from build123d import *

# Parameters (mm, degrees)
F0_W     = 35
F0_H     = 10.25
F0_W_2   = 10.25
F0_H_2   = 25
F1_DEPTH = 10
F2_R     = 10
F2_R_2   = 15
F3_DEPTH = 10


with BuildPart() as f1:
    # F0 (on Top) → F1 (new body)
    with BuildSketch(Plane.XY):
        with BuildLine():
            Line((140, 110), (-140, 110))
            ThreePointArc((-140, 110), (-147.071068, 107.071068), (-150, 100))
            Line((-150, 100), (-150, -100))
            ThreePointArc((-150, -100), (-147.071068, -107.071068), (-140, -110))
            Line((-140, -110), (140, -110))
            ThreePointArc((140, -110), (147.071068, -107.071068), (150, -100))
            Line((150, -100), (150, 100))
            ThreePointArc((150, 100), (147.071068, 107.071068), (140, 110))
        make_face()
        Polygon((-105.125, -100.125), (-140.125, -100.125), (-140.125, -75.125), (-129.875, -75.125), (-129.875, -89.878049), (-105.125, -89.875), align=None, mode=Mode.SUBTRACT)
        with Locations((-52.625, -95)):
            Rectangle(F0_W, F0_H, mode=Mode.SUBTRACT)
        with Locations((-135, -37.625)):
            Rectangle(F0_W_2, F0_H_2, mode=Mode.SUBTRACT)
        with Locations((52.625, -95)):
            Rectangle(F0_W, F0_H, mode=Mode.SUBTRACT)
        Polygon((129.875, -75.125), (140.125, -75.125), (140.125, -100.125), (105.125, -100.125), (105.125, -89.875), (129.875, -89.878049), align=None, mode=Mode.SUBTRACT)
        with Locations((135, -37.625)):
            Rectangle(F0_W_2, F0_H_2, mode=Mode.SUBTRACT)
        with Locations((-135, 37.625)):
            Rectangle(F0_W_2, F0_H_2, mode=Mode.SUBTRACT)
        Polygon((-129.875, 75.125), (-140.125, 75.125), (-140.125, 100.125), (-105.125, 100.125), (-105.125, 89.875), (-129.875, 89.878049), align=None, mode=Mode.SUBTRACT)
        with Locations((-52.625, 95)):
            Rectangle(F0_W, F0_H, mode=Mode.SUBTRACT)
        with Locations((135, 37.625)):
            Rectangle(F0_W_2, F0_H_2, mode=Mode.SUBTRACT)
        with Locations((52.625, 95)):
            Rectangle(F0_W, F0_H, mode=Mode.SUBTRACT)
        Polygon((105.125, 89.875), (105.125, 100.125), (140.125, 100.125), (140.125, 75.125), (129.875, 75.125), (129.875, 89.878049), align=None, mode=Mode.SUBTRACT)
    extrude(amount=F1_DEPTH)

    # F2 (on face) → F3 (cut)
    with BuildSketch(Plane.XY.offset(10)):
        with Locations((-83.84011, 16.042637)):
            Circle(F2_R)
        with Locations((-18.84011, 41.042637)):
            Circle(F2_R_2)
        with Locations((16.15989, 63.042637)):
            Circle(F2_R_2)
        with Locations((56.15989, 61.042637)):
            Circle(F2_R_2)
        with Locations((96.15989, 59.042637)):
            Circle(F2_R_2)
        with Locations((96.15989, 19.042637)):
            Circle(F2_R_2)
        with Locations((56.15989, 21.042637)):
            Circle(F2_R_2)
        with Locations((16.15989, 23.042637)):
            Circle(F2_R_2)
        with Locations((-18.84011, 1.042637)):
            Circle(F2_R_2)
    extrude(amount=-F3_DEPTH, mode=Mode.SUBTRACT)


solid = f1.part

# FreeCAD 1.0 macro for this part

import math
import FreeCAD as App
import Part
import Sketcher

V = App.Vector


def add_polygon(sketch, points):
    """Adds a closed chain of lines whose ends are joined by coincident constraints."""
    first, n = sketch.GeometryCount, len(points)
    for a, b in zip(points, points[1:] + points[:1]):
        sketch.addGeometry(Part.LineSegment(App.Vector(*a, 0), App.Vector(*b, 0)), False)
    for i in range(n):
        sketch.addConstraint(Sketcher.Constraint("Coincident", first + i, 2, first + (i + 1) % n, 1))

doc = App.newDocument("Part")
params = doc.addObject("Spreadsheet::Sheet", "Params")
for row, (alias, value) in enumerate([
    ("sketch1_radius", "9.999999 mm"),
    ("sketch1_width", "280 mm"),
    ("sketch1_width2", "35 mm"),
    ("sketch1_height", "200 mm"),
    ("sketch1_height2", "25 mm"),
    ("pad1_length", "10 mm"),
    ("sketch2_diameter", "20 mm"),
    ("sketch2_diameter2", "30 mm"),
    ("pocket1_length", "10 mm"),
], start=1):
    params.set(f"A{row}", alias)
    params.set(f"B{row}", "=" + value)
    params.setAlias(f"B{row}", alias)

body = doc.addObject("PartDesign::Body", "Body")

# Sketch on XY plane
sketch1 = body.newObject("Sketcher::SketchObject", "Sketch")
sketch1.AttachmentSupport = (doc.getObject("XY_Plane"), [""])
sketch1.MapMode = "FlatFace"
sketch1.addGeometry(Part.LineSegment(V(140, 110, 0), V(-140, 110, 0)), False)  # 0
sketch1.addGeometry(Part.ArcOfCircle(Part.Circle(V(-140, 100, 0), V(0, 0, 1), 10), math.radians(90), math.radians(180)), False)  # 1
sketch1.addGeometry(Part.LineSegment(V(-150, 100, 0), V(-150, -100, 0)), False)  # 2
sketch1.addGeometry(Part.ArcOfCircle(Part.Circle(V(-140, -100, 0), V(0, 0, 1), 10), math.radians(180), math.radians(270)), False)  # 3
sketch1.addGeometry(Part.LineSegment(V(-140, -110, 0), V(140, -110, 0)), False)  # 4
sketch1.addGeometry(Part.ArcOfCircle(Part.Circle(V(140, -100, 0), V(0, 0, 1), 10), math.radians(-90), math.radians(0)), False)  # 5
sketch1.addGeometry(Part.LineSegment(V(150, -100, 0), V(150, 100, 0)), False)  # 6
sketch1.addGeometry(Part.ArcOfCircle(Part.Circle(V(140, 100, 0), V(0, 0, 1), 10), math.radians(0), math.radians(90)), False)  # 7
add_polygon(sketch1, [(-105, -90), (-105, -100), (-140, -100), (-140, -75), (-130, -75), (-130, -90)])  # lines 8-13
add_polygon(sketch1, [(-35, -100), (-70, -100), (-70, -90), (-35, -90)])  # lines 14-17
add_polygon(sketch1, [(-130, -50), (-140, -50), (-140, -25), (-130, -25)])  # lines 18-21
add_polygon(sketch1, [(70, -100), (35, -100), (35, -90), (70, -90)])  # lines 22-25
add_polygon(sketch1, [(130, -90), (130, -75), (140, -75), (140, -100), (105, -100), (105, -90)])  # lines 26-31
add_polygon(sketch1, [(140, -50), (130, -50), (130, -25), (140, -25)])  # lines 32-35
add_polygon(sketch1, [(-130, 25), (-140, 25), (-140, 50), (-130, 50)])  # lines 36-39
add_polygon(sketch1, [(-130, 90), (-130, 75), (-140, 75), (-140, 100), (-105, 100), (-105, 90)])  # lines 40-45
add_polygon(sketch1, [(-35, 90), (-70, 90), (-70, 100), (-35, 100)])  # lines 46-49
add_polygon(sketch1, [(140, 25), (130, 25), (130, 50), (140, 50)])  # lines 50-53
add_polygon(sketch1, [(70, 90), (35, 90), (35, 100), (70, 100)])  # lines 54-57
add_polygon(sketch1, [(130, 90), (105, 90), (105, 100), (140, 100), (140, 75), (130, 75)])  # lines 58-63
sketch1.addConstraint([
    Sketcher.Constraint("Tangent", 0, 2, 1, 1),
    Sketcher.Constraint("Tangent", 1, 2, 2, 1),
    Sketcher.Constraint("Tangent", 2, 2, 3, 1),
    Sketcher.Constraint("Tangent", 3, 2, 4, 1),
    Sketcher.Constraint("Tangent", 4, 2, 5, 1),
    Sketcher.Constraint("Tangent", 5, 2, 6, 1),
    Sketcher.Constraint("Tangent", 6, 2, 7, 1),
    Sketcher.Constraint("Tangent", 7, 2, 0, 1),
    Sketcher.Constraint("Horizontal", 0),
    Sketcher.Constraint("Vertical", 2),
    Sketcher.Constraint("Horizontal", 4),
    Sketcher.Constraint("Vertical", 6),
    Sketcher.Constraint("Vertical", 8),
    Sketcher.Constraint("Horizontal", 9),
    Sketcher.Constraint("Vertical", 10),
    Sketcher.Constraint("Horizontal", 11),
    Sketcher.Constraint("Vertical", 12),
    Sketcher.Constraint("Horizontal", 14),
    Sketcher.Constraint("Vertical", 15),
    Sketcher.Constraint("Horizontal", 16),
    Sketcher.Constraint("Vertical", 17),
    Sketcher.Constraint("Horizontal", 18),
    Sketcher.Constraint("Vertical", 19),
    Sketcher.Constraint("Horizontal", 20),
    Sketcher.Constraint("Vertical", 21),
    Sketcher.Constraint("Horizontal", 22),
    Sketcher.Constraint("Vertical", 23),
    Sketcher.Constraint("Horizontal", 24),
    Sketcher.Constraint("Vertical", 25),
    Sketcher.Constraint("Vertical", 26),
    Sketcher.Constraint("Horizontal", 27),
    Sketcher.Constraint("Vertical", 28),
    Sketcher.Constraint("Horizontal", 29),
    Sketcher.Constraint("Vertical", 30),
    Sketcher.Constraint("Horizontal", 32),
    Sketcher.Constraint("Vertical", 33),
    Sketcher.Constraint("Horizontal", 34),
    Sketcher.Constraint("Vertical", 35),
    Sketcher.Constraint("Horizontal", 36),
    Sketcher.Constraint("Vertical", 37),
    Sketcher.Constraint("Horizontal", 38),
    Sketcher.Constraint("Vertical", 39),
    Sketcher.Constraint("Vertical", 40),
    Sketcher.Constraint("Horizontal", 41),
    Sketcher.Constraint("Vertical", 42),
    Sketcher.Constraint("Horizontal", 43),
    Sketcher.Constraint("Vertical", 44),
    Sketcher.Constraint("Horizontal", 46),
    Sketcher.Constraint("Vertical", 47),
    Sketcher.Constraint("Horizontal", 48),
    Sketcher.Constraint("Vertical", 49),
    Sketcher.Constraint("Horizontal", 50),
    Sketcher.Constraint("Vertical", 51),
    Sketcher.Constraint("Horizontal", 52),
    Sketcher.Constraint("Vertical", 53),
    Sketcher.Constraint("Horizontal", 54),
    Sketcher.Constraint("Vertical", 55),
    Sketcher.Constraint("Horizontal", 56),
    Sketcher.Constraint("Vertical", 57),
    Sketcher.Constraint("Vertical", 59),
    Sketcher.Constraint("Horizontal", 60),
    Sketcher.Constraint("Vertical", 61),
    Sketcher.Constraint("Horizontal", 62),
    Sketcher.Constraint("Vertical", 63),
    Sketcher.Constraint("Equal", 1, 3),
    Sketcher.Constraint("Equal", 3, 5),
    Sketcher.Constraint("Equal", 5, 7),
    Sketcher.Constraint("Symmetric", 1, 3, 5, 3, -1, 1),
    Sketcher.Constraint("Symmetric", 34, 2, 36, 2, -1, 1),
    Sketcher.Constraint("Symmetric", 32, 2, 38, 2, -1, 1),
    Sketcher.Constraint("Symmetric", 26, 2, 40, 2, -1, 1),
    Sketcher.Constraint("Symmetric", 28, 2, 42, 2, -1, 1),
    Sketcher.Constraint("Symmetric", 30, 2, 44, 2, -1, 1),
    Sketcher.Constraint("Symmetric", 24, 2, 46, 2, -1, 1),
    Sketcher.Constraint("Symmetric", 22, 2, 48, 2, -1, 1),
    Sketcher.Constraint("Symmetric", 20, 2, 50, 2, -1, 1),
    Sketcher.Constraint("Symmetric", 18, 2, 52, 2, -1, 1),
    Sketcher.Constraint("Symmetric", 16, 2, 54, 2, -1, 1),
    Sketcher.Constraint("Symmetric", 14, 2, 56, 2, -1, 1),
    Sketcher.Constraint("Symmetric", 13, 2, 58, 2, -1, 1),
    Sketcher.Constraint("Symmetric", 9, 2, 60, 2, -1, 1),
    Sketcher.Constraint("Symmetric", 11, 2, 62, 2, -1, 1),
    Sketcher.Constraint("Symmetric", 17, 2, 22, 2, -2),
    Sketcher.Constraint("Symmetric", 15, 2, 24, 2, -2),
    Sketcher.Constraint("Symmetric", 11, 2, 26, 2, -2),
    Sketcher.Constraint("Symmetric", 9, 2, 28, 2, -2),
    Sketcher.Constraint("Symmetric", 13, 2, 30, 2, -2),
    Sketcher.Constraint("Symmetric", 21, 2, 32, 2, -2),
    Sketcher.Constraint("Symmetric", 19, 2, 34, 2, -2),
    Sketcher.Constraint("Parallel", 31, 45),
    Sketcher.Constraint("Parallel", 13, 58),
    Sketcher.Constraint("Horizontal", 9, 2, 14, 2),
    Sketcher.Constraint("Horizontal", 13, 2, 15, 2),
    Sketcher.Constraint("Horizontal", 12, 2, 31, 2),
    Sketcher.Constraint("Vertical", 10, 2, 18, 2),
    Sketcher.Constraint("Vertical", 12, 2, 20, 2),
    Sketcher.Constraint("Equal", 9, 14),
    Sketcher.Constraint("Equal", 62, 8),
    Sketcher.Constraint("Equal", 10, 19),
    Sketcher.Constraint("Radius", 1, 9.999999),
    Sketcher.Constraint("DistanceX", 0, 2, 0, 1, 280.0),
    Sketcher.Constraint("DistanceX", 9, 2, 9, 1, 35.0),
    Sketcher.Constraint("DistanceY", 2, 2, 2, 1, 200.0),
    Sketcher.Constraint("DistanceY", 10, 1, 10, 2, 25.0),
    Sketcher.Constraint("DistanceX", 11, 1, 11, 2, 10.25),
    Sketcher.Constraint("DistanceX", 8, 2, -1, 1, 105.125),
    Sketcher.Constraint("DistanceY", 8, 2, -1, 1, 100.125),
    Sketcher.Constraint("DistanceX", 14, 2, -1, 1, 70.125),
    Sketcher.Constraint("DistanceY", 18, 2, -1, 1, 50.125),
    Sketcher.Constraint("DistanceY", 12, 2, 12, 1, 14.753049),
])
sketch1.setExpression("Constraints[155]", "Params.sketch1_radius")
sketch1.setExpression("Constraints[156]", "Params.sketch1_width")
sketch1.setExpression("Constraints[157]", "Params.sketch1_width2")
sketch1.setExpression("Constraints[158]", "Params.sketch1_height")
sketch1.setExpression("Constraints[159]", "Params.sketch1_height2")
pad1 = body.newObject("PartDesign::Pad", "Pad")
pad1.Profile = sketch1
pad1.setExpression("Length", "Params.pad1_length")

# Sketch on XY plane
sketch2 = body.newObject("Sketcher::SketchObject", "Sketch001")
sketch2.AttachmentSupport = (doc.getObject("XY_Plane"), [""])
sketch2.MapMode = "FlatFace"
sketch2.AttachmentOffset = App.Placement(V(0, 0, 10), App.Rotation())
sketch2.addGeometry([
    Part.Circle(V(-84, 16, 0), V(0, 0, 1), 10),  # 0
    Part.Circle(V(-19, 41, 0), V(0, 0, 1), 15),  # 1
    Part.Circle(V(16, 63, 0), V(0, 0, 1), 15),  # 2
    Part.Circle(V(56, 61, 0), V(0, 0, 1), 15),  # 3
    Part.Circle(V(96, 59, 0), V(0, 0, 1), 15),  # 4
    Part.Circle(V(96, 19, 0), V(0, 0, 1), 15),  # 5
    Part.Circle(V(56, 21, 0), V(0, 0, 1), 15),  # 6
    Part.Circle(V(16, 23, 0), V(0, 0, 1), 15),  # 7
    Part.Circle(V(-19, 1, 0), V(0, 0, 1), 15),  # 8
], False)
sketch2.addConstraint([
    Sketcher.Constraint("Equal", 1, 2),
    Sketcher.Constraint("Equal", 2, 3),
    Sketcher.Constraint("Equal", 3, 4),
    Sketcher.Constraint("Equal", 4, 5),
    Sketcher.Constraint("Equal", 5, 6),
    Sketcher.Constraint("Equal", 6, 7),
    Sketcher.Constraint("Equal", 7, 8),
    Sketcher.Constraint("Vertical", 4, 3, 5, 3),
    Sketcher.Constraint("Vertical", 3, 3, 6, 3),
    Sketcher.Constraint("Vertical", 2, 3, 7, 3),
    Sketcher.Constraint("Vertical", 1, 3, 8, 3),
    Sketcher.Constraint("Diameter", 0, 20.0),
    Sketcher.Constraint("Diameter", 1, 30.0),
    Sketcher.Constraint("DistanceX", 0, 3, 1, 3, 65.0),
    Sketcher.Constraint("DistanceY", 0, 3, 1, 3, 25.0),
    Sketcher.Constraint("DistanceX", 1, 3, 2, 3, 35.0),
    Sketcher.Constraint("DistanceY", 1, 3, 2, 3, 22.0),
    Sketcher.Constraint("DistanceX", 2, 3, 3, 3, 40.0),
    Sketcher.Constraint("DistanceY", 3, 3, 2, 3, 2.0),
    Sketcher.Constraint("DistanceX", 3, 3, 4, 3, 40.0),
    Sketcher.Constraint("DistanceY", 4, 3, 3, 3, 2.0),
    Sketcher.Constraint("DistanceY", 5, 3, 4, 3, 40.0),
    Sketcher.Constraint("DistanceY", 6, 3, 3, 3, 40.0),
    Sketcher.Constraint("DistanceY", 7, 3, 1, 3, 18.0),
    Sketcher.Constraint("DistanceY", 8, 3, 1, 3, 40.0),
    Sketcher.Constraint("DistanceX", 0, 3, -1, 1, 83.84011),
    Sketcher.Constraint("DistanceY", -1, 1, 0, 3, 16.042637),
])
sketch2.setExpression("Constraints[11]", "Params.sketch2_diameter")
sketch2.setExpression("Constraints[12]", "Params.sketch2_diameter2")
pocket1 = body.newObject("PartDesign::Pocket", "Pocket")
pocket1.Profile = sketch2
pocket1.setExpression("Length", "Params.pocket1_length")

doc.recompute()
